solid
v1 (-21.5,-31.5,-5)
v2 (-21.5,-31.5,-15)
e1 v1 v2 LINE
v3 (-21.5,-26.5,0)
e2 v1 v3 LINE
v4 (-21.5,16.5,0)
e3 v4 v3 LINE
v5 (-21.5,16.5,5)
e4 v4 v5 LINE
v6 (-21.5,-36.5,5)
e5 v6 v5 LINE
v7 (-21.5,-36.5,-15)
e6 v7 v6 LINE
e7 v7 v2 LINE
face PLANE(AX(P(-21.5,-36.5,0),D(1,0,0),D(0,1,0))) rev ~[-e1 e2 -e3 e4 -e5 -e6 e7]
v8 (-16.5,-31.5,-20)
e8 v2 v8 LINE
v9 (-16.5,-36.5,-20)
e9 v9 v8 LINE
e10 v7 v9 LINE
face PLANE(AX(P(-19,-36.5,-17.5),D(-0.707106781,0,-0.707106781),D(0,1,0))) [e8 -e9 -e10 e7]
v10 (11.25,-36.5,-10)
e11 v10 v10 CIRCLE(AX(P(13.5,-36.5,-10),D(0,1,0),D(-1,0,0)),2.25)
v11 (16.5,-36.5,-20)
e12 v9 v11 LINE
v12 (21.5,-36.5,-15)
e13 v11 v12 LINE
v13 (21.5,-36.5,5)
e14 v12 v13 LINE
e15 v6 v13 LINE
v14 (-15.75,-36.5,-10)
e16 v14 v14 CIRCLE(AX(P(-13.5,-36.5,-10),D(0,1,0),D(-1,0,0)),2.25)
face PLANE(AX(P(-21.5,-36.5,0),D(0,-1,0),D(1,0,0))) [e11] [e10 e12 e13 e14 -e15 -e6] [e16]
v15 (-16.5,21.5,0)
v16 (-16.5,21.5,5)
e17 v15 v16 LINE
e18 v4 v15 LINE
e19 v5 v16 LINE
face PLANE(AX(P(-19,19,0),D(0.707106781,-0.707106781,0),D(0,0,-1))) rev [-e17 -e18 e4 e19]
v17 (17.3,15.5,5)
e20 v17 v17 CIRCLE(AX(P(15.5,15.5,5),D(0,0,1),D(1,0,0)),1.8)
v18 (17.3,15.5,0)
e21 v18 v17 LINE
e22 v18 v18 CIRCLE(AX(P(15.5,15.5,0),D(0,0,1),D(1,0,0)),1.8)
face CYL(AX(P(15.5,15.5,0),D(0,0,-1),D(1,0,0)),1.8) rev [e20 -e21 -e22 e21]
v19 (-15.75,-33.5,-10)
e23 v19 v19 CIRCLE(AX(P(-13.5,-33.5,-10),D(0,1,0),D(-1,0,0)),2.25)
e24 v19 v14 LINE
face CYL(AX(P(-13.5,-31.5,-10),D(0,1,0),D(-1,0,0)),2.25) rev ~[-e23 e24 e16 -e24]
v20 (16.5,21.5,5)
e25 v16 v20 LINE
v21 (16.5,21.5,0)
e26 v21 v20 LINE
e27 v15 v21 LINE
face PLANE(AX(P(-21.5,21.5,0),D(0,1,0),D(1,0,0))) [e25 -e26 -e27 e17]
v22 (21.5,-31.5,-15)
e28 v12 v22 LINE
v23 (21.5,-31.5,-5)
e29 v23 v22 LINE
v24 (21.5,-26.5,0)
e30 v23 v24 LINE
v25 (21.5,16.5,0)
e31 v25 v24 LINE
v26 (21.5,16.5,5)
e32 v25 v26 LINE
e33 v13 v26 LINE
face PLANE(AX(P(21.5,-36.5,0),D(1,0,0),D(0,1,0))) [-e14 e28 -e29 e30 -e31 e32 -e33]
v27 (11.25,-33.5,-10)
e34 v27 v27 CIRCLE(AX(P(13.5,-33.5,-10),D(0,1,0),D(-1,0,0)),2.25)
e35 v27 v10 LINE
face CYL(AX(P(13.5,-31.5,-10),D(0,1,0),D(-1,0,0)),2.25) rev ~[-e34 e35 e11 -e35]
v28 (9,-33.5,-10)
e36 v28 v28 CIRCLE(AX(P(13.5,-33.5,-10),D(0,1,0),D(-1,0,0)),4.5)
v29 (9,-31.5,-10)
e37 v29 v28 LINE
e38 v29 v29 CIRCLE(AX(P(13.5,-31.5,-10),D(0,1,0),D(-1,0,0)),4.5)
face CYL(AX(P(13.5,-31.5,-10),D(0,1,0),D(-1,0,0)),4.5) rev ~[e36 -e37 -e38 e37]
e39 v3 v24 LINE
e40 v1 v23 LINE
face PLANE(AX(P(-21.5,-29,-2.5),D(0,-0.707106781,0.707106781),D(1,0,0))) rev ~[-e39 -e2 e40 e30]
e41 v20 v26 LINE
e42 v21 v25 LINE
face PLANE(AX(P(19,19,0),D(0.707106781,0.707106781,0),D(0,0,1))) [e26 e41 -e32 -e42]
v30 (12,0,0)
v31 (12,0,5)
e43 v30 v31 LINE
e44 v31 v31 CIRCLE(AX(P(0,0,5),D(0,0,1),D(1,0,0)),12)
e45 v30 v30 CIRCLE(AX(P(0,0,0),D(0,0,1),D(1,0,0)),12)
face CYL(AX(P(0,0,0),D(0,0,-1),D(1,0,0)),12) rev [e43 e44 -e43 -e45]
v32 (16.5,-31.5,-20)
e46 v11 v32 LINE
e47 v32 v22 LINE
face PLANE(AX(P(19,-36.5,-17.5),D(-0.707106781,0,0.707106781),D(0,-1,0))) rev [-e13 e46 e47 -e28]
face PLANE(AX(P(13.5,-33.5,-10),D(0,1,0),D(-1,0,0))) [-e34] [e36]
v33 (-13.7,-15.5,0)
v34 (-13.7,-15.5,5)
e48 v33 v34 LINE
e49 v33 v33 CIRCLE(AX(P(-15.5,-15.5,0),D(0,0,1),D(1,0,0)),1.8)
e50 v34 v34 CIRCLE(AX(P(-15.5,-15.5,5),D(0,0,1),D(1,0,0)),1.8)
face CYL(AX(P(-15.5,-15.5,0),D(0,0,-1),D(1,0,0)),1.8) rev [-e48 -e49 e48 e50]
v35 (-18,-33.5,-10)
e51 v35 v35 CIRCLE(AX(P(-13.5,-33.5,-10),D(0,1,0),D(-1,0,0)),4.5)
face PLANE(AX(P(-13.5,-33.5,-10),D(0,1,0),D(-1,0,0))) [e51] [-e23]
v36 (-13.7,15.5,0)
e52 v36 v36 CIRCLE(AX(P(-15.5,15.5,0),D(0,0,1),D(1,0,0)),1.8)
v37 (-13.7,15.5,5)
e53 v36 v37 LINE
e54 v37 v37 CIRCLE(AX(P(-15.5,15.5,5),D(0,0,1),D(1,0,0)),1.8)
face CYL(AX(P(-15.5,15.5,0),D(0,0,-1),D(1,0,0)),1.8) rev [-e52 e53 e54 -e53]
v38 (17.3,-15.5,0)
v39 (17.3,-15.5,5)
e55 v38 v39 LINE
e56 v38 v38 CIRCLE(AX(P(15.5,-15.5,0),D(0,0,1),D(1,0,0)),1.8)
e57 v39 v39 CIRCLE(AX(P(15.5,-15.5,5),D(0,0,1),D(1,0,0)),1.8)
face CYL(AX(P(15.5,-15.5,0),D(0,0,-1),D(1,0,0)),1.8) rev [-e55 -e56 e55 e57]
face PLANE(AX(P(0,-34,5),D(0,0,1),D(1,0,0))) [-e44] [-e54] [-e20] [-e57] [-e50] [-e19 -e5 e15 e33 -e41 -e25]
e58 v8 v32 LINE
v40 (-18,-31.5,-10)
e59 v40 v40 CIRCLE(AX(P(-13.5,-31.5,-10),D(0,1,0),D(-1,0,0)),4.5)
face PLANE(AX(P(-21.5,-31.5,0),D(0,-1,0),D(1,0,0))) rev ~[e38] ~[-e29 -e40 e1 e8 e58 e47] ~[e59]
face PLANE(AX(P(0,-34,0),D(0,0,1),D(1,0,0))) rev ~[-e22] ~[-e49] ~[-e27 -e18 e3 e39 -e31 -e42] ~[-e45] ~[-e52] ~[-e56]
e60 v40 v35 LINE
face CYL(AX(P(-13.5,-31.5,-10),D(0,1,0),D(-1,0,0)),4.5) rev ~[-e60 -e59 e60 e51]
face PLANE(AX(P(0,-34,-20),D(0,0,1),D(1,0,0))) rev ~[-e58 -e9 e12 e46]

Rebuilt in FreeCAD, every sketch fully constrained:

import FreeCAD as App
import Part
import Sketcher

V = App.Vector
Q = App.Units.Quantity


def edges_at(feature, points):
    """Names of the edges that pass closest to the given points."""
    edges = feature.Shape.Edges
    near = lambda p: min(range(len(edges)), key=lambda i: edges[i].distToShape(Part.Vertex(*p))[0])
    return sorted({f"Edge{near(p) + 1}" for p in points})


def add_polygon(sketch, points):
    """Adds a closed chain of lines whose ends are joined by coincident constraints."""
    first, n = sketch.GeometryCount, len(points)
    for a, b in zip(points, points[1:] + points[:1]):
        sketch.addGeometry(Part.LineSegment(App.Vector(*a, 0), App.Vector(*b, 0)), False)
    for i in range(n):
        sketch.addConstraint(Sketcher.Constraint("Coincident", first + i, 2, first + (i + 1) % n, 1))

doc = App.newDocument("Part")
body = doc.addObject("PartDesign::Body", "Body")

# Sketch on XY plane
sketch1 = body.newObject("Sketcher::SketchObject", "Sketch")
sketch1.AttachmentSupport = (doc.getObject("XY_Plane"), [""])
sketch1.MapMode = "FlatFace"
add_polygon(sketch1, [(-21.5, 21.5), (-21.5, -31.5), (21.5, -31.5), (21.5, 21.5)])  # lines 0-3
sketch1.addGeometry(Part.Circle(V(-15.5, -15.5, 0), V(0, 0, 1), 1.8), False)  # 4
sketch1.addGeometry(Part.Circle(V(15.5, -15.5, 0), V(0, 0, 1), 1.8), False)  # 5
sketch1.addGeometry(Part.Circle(V(-15.5, 15.5, 0), V(0, 0, 1), 1.8), False)  # 6
sketch1.addGeometry(Part.Circle(V(0, 0, 0), V(0, 0, 1), 12), False)  # 7
sketch1.addGeometry(Part.Circle(V(15.5, 15.5, 0), V(0, 0, 1), 1.8), False)  # 8
sketch1.addConstraint(Sketcher.Constraint("Vertical", 0))
sketch1.addConstraint(Sketcher.Constraint("Horizontal", 1))
sketch1.addConstraint(Sketcher.Constraint("Vertical", 2))
sketch1.addConstraint(Sketcher.Constraint("Horizontal", 3))
sketch1.addConstraint(Sketcher.Constraint("Coincident", 7, 3, -1, 1))
sketch1.addConstraint(Sketcher.Constraint("Equal", 4, 5))
sketch1.addConstraint(Sketcher.Constraint("Equal", 5, 6))
sketch1.addConstraint(Sketcher.Constraint("Equal", 6, 8))
sketch1.addConstraint(Sketcher.Constraint("Symmetric", 5, 3, 6, 3, -1, 1))
sketch1.addConstraint(Sketcher.Constraint("Symmetric", 4, 3, 8, 3, -1, 1))
sketch1.addConstraint(Sketcher.Constraint("Symmetric", 4, 3, 5, 3, -2))
sketch1.addConstraint(Sketcher.Constraint("Diameter", 7, Q("24 mm")))
sketch1.addConstraint(Sketcher.Constraint("Diameter", 4, Q("3.6 mm")))
sketch1.addConstraint(Sketcher.Constraint("DistanceX", 1, 1, 1, 2, Q("43 mm")))
sketch1.addConstraint(Sketcher.Constraint("DistanceY", 0, 2, 0, 1, Q("53 mm")))
sketch1.addConstraint(Sketcher.Constraint("DistanceX", 4, 3, 5, 3, Q("31 mm")))
sketch1.addConstraint(Sketcher.Constraint("DistanceY", 4, 3, 6, 3, Q("31 mm")))
sketch1.addConstraint(Sketcher.Constraint("DistanceX", 0, 2, 4, 3, Q("6 mm")))
sketch1.addConstraint(Sketcher.Constraint("DistanceY", 0, 2, 4, 3, Q("16 mm")))
pad1 = body.newObject("PartDesign::Pad", "Pad")
pad1.Profile = sketch1
pad1.Length = 5

# Sketch on XY plane
sketch2 = body.newObject("Sketcher::SketchObject", "Sketch001")
sketch2.AttachmentSupport = (doc.getObject("XY_Plane"), [""])
sketch2.MapMode = "FlatFace"
add_polygon(sketch2, [(-22, -32), (-22, -36), (22, -36), (22, -32)])  # lines 0-3
sketch2.addConstraint(Sketcher.Constraint("Vertical", 0))
sketch2.addConstraint(Sketcher.Constraint("Horizontal", 1))
sketch2.addConstraint(Sketcher.Constraint("Vertical", 2))
sketch2.addConstraint(Sketcher.Constraint("Horizontal", 3))
sketch2.addConstraint(Sketcher.Constraint("DistanceX", 1, 1, 1, 2, Q("43 mm")))
sketch2.addConstraint(Sketcher.Constraint("DistanceY", 0, 2, 0, 1, Q("5 mm")))
sketch2.addConstraint(Sketcher.Constraint("DistanceX", 0, 2, -1, 1, Q("21.5 mm")))
sketch2.addConstraint(Sketcher.Constraint("DistanceY", 0, 2, -1, 1, Q("36.5 mm")))
pad2 = body.newObject("PartDesign::Pad", "Pad001")
pad2.Profile = sketch2
pad2.Type = "TwoLengths"
pad2.Length = 5
pad2.Length2 = 20

# Sketch on XZ plane
sketch3 = body.newObject("Sketcher::SketchObject", "Sketch002")
sketch3.AttachmentSupport = (doc.getObject("XZ_Plane"), [""])
sketch3.MapMode = "FlatFace"
sketch3.AttachmentOffset = App.Placement(V(0, 0, 31.5), App.Rotation())
sketch3.addGeometry(Part.Circle(V(13.5, -10, 0), V(0, 0, 1), 2.2), False)
sketch3.addGeometry(Part.Circle(V(-13.5, -10, 0), V(0, 0, 1), 2.2), False)
sketch3.addConstraint(Sketcher.Constraint("Equal", 0, 1))
sketch3.addConstraint(Sketcher.Constraint("Symmetric", 0, 3, 1, 3, -2))
sketch3.addConstraint(Sketcher.Constraint("Diameter", 0, Q("4.5 mm")))
sketch3.addConstraint(Sketcher.Constraint("DistanceY", 0, 3, -1, 1, Q("10 mm")))
sketch3.addConstraint(Sketcher.Constraint("DistanceX", 1, 3, 0, 3, Q("27 mm")))
pocket1 = body.newObject("PartDesign::Pocket", "Pocket")
pocket1.Profile = sketch3
pocket1.Type = "ThroughAll"
pocket1.Reversed = True

# Sketch on XZ plane
sketch4 = body.newObject("Sketcher::SketchObject", "Sketch003")
sketch4.AttachmentSupport = (doc.getObject("XZ_Plane"), [""])
sketch4.MapMode = "FlatFace"
sketch4.AttachmentOffset = App.Placement(V(0, 0, 31.5), App.Rotation())
sketch4.addGeometry(Part.Circle(V(13.5, -10, 0), V(0, 0, 1), 4.5), False)
sketch4.addGeometry(Part.Circle(V(13.5, -10, 0), V(0, 0, 1), 2.2), False)
sketch4.addGeometry(Part.Circle(V(-13.5, -10, 0), V(0, 0, 1), 4.5), False)
sketch4.addGeometry(Part.Circle(V(-13.5, -10, 0), V(0, 0, 1), 2.2), False)
sketch4.addConstraint(Sketcher.Constraint("Coincident", 1, 3, 0, 3))
sketch4.addConstraint(Sketcher.Constraint("Coincident", 3, 3, 2, 3))
sketch4.addConstraint(Sketcher.Constraint("Equal", 0, 2))
sketch4.addConstraint(Sketcher.Constraint("Equal", 1, 3))
sketch4.addConstraint(Sketcher.Constraint("Symmetric", 0, 3, 2, 3, -2))
sketch4.addConstraint(Sketcher.Constraint("Diameter", 0, Q("9 mm")))
sketch4.addConstraint(Sketcher.Constraint("Diameter", 1, Q("4.5 mm")))
sketch4.addConstraint(Sketcher.Constraint("DistanceY", 0, 3, -1, 1, Q("10 mm")))
sketch4.addConstraint(Sketcher.Constraint("DistanceX", 2, 3, 0, 3, Q("27 mm")))
pocket2 = body.newObject("PartDesign::Pocket", "Pocket001")
pocket2.Profile = sketch4
pocket2.Length = 2
pocket2.Reversed = True
doc.recompute()

chamfer = body.newObject("PartDesign::Chamfer", "Chamfer")
chamfer.Base = (pocket2, edges_at(pocket2, [
    (-21.5, 21.5, 2.5),
    (21.5, 21.5, 2.5),
    (-21.5, -34, -20),
    (21.5, -34, -20),
    (0, -31.5, 0),
]))
chamfer.Size = 5

doc.recompute()
